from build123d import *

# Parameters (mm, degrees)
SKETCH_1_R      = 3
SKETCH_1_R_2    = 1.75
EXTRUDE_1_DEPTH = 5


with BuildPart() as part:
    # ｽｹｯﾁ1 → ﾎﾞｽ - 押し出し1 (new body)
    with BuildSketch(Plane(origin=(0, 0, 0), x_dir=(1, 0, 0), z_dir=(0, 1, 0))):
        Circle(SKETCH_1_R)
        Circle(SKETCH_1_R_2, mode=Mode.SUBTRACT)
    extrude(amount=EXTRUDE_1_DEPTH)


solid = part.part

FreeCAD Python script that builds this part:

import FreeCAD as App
import Part
import Sketcher

V = App.Vector
Q = App.Units.Quantity

doc = App.newDocument("Part")
body = doc.addObject("PartDesign::Body", "Body")

# Sketch on XZ plane
sketch1 = body.newObject("Sketcher::SketchObject", "Sketch")
sketch1.AttachmentSupport = (doc.getObject("XZ_Plane"), [""])
sketch1.MapMode = "FlatFace"
sketch1.addGeometry([
    Part.Circle(V(0, 0, 0), V(0, 0, 1), 3),
    Part.Circle(V(0, 0, 0), V(0, 0, 1), 1.8),
], False)
sketch1.addConstraint([
    Sketcher.Constraint("Coincident", 0, 3, -1, 1),
    Sketcher.Constraint("Coincident", 1, 3, -1, 1),
    Sketcher.Constraint("Diameter", 0, Q("6 mm")),
    Sketcher.Constraint("Diameter", 1, Q("3.5 mm")),
])
pad1 = body.newObject("PartDesign::Pad", "Pad")
pad1.Profile = sketch1
pad1.Length = 5
pad1.Reversed = True

doc.recompute()
